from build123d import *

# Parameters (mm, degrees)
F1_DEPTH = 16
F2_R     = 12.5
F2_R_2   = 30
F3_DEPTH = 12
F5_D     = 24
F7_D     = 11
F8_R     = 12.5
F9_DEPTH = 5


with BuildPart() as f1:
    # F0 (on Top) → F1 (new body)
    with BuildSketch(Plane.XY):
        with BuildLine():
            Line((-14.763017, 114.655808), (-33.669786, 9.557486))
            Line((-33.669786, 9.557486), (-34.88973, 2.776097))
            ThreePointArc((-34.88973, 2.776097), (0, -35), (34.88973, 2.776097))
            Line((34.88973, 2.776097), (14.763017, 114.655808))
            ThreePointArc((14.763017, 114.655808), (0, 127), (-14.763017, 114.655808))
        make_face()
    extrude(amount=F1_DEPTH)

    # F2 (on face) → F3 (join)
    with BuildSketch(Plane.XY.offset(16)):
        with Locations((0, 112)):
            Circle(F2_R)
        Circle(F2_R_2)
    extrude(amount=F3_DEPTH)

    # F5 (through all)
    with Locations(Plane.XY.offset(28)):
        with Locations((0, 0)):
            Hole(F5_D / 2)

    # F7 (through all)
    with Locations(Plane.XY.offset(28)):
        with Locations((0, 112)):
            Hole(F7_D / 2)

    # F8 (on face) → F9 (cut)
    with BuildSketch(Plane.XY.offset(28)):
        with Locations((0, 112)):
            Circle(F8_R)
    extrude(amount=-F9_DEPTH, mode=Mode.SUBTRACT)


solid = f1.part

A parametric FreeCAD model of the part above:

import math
import FreeCAD as App
import Part
import Sketcher

V = App.Vector
Q = App.Units.Quantity

doc = App.newDocument("Part")
body = doc.addObject("PartDesign::Body", "Body")

# Sketch on XY plane
sketch1 = body.newObject("Sketcher::SketchObject", "Sketch")
sketch1.AttachmentSupport = (doc.getObject("XY_Plane"), [""])
sketch1.MapMode = "FlatFace"
sketch1.addGeometry(Part.LineSegment(V(-14.763017, 114.655808, 0), V(-33.669786, 9.557486, 0)), False)
sketch1.addGeometry(Part.LineSegment(V(-33.669786, 9.557486, 0), V(-34.88973, 2.776097, 0)), False)
sketch1.addGeometry(Part.ArcOfCircle(Part.Circle(V(0, 0, 0), V(0, 0, 1), 35), math.radians(175.450688), math.radians(364.549312)), False)
sketch1.addGeometry(Part.LineSegment(V(34.88973, 2.776097, 0), V(14.763017, 114.655808, 0)), False)
sketch1.addGeometry(Part.ArcOfCircle(Part.Circle(V(0, 112.000001, 0), V(0, 0, 1), 14.999999), math.radians(10.198201), math.radians(169.801799)), False)
sketch1.addConstraint(Sketcher.Constraint("Coincident", 0, 2, 1, 1))
sketch1.addConstraint(Sketcher.Constraint("Coincident", 1, 2, 2, 1))
sketch1.addConstraint(Sketcher.Constraint("Coincident", 2, 2, 3, 1))
sketch1.addConstraint(Sketcher.Constraint("Tangent", 3, 2, 4, 1))
sketch1.addConstraint(Sketcher.Constraint("Tangent", 4, 2, 0, 1))
sketch1.addConstraint(Sketcher.Constraint("Coincident", 2, 3, -1, 1))
sketch1.addConstraint(Sketcher.Constraint("Symmetric", 3, 2, 4, 2, -2))
sketch1.addConstraint(Sketcher.Constraint("Parallel", 0, 1))
sketch1.addConstraint(Sketcher.Constraint("Radius", 2, Q("35 mm")))
sketch1.addConstraint(Sketcher.Constraint("Radius", 4, Q("14.999999 mm")))
sketch1.addConstraint(Sketcher.Constraint("DistanceY", -1, 1, 4, 3, Q("112.000001 mm")))
sketch1.addConstraint(Sketcher.Constraint("DistanceX", 1, 2, -1, 1, Q("34.88973 mm")))
sketch1.addConstraint(Sketcher.Constraint("DistanceY", 1, 2, 0, 2, Q("6.781389 mm")))
pad1 = body.newObject("PartDesign::Pad", "Pad")
pad1.Profile = sketch1
pad1.Length = 16

# Sketch on XY plane
sketch2 = body.newObject("Sketcher::SketchObject", "Sketch001")
sketch2.AttachmentSupport = (doc.getObject("XY_Plane"), [""])
sketch2.MapMode = "FlatFace"
sketch2.AttachmentOffset = App.Placement(V(0, 0, 16), App.Rotation())
sketch2.addGeometry(Part.Circle(V(0, 112, 0), V(0, 0, 1), 12.5), False)
sketch2.addGeometry(Part.Circle(V(0, 0, 0), V(0, 0, 1), 30), False)
sketch2.addConstraint(Sketcher.Constraint("Coincident", 1, 3, -1, 1))
sketch2.addConstraint(Sketcher.Constraint("PointOnObject", 0, 3, -2))
sketch2.addConstraint(Sketcher.Constraint("Diameter", 0, Q("25 mm")))
sketch2.addConstraint(Sketcher.Constraint("Diameter", 1, Q("60 mm")))
sketch2.addConstraint(Sketcher.Constraint("DistanceY", -1, 1, 0, 3, Q("112 mm")))
pad2 = body.newObject("PartDesign::Pad", "Pad001")
pad2.Profile = sketch2
pad2.Length = 12

# Sketch on XY plane
sketch3 = body.newObject("Sketcher::SketchObject", "Sketch002")
sketch3.AttachmentSupport = (doc.getObject("XY_Plane"), [""])
sketch3.MapMode = "FlatFace"
sketch3.AttachmentOffset = App.Placement(V(0, 0, 28), App.Rotation())
sketch3.addGeometry(Part.Circle(V(0, 0, 0), V(0, 0, 1), 12), False)
sketch3.addConstraint(Sketcher.Constraint("Coincident", 0, 3, -1, 1))
sketch3.addConstraint(Sketcher.Constraint("Diameter", 0, Q("24 mm")))
doc.recompute()
hole = body.newObject("PartDesign::Hole", "Hole")
hole.Profile = sketch3
hole.ThreadType = "None"
hole.Diameter = 24
hole.DepthType = "ThroughAll"

# Sketch on XY plane
sketch4 = body.newObject("Sketcher::SketchObject", "Sketch003")
sketch4.AttachmentSupport = (doc.getObject("XY_Plane"), [""])
sketch4.MapMode = "FlatFace"
sketch4.AttachmentOffset = App.Placement(V(0, 0, 28), App.Rotation())
sketch4.addGeometry(Part.Circle(V(0, 112, 0), V(0, 0, 1), 5.5), False)
sketch4.addConstraint(Sketcher.Constraint("PointOnObject", 0, 3, -2))
sketch4.addConstraint(Sketcher.Constraint("Diameter", 0, Q("11 mm")))
sketch4.addConstraint(Sketcher.Constraint("DistanceY", -1, 1, 0, 3, Q("112 mm")))
doc.recompute()
hole2 = body.newObject("PartDesign::Hole", "Hole001")
hole2.Profile = sketch4
hole2.ThreadType = "None"
hole2.Diameter = 11
hole2.DepthType = "ThroughAll"

# Sketch on XY plane
sketch5 = body.newObject("Sketcher::SketchObject", "Sketch004")
sketch5.AttachmentSupport = (doc.getObject("XY_Plane"), [""])
sketch5.MapMode = "FlatFace"
sketch5.AttachmentOffset = App.Placement(V(0, 0, 28), App.Rotation())
sketch5.addGeometry(Part.Circle(V(0, 112, 0), V(0, 0, 1), 12.5), False)
sketch5.addConstraint(Sketcher.Constraint("PointOnObject", 0, 3, -2))
sketch5.addConstraint(Sketcher.Constraint("Diameter", 0, Q("25 mm")))
sketch5.addConstraint(Sketcher.Constraint("DistanceY", -1, 1, 0, 3, Q("112 mm")))
pocket1 = body.newObject("PartDesign::Pocket", "Pocket")
pocket1.Profile = sketch5
pocket1.Length = 5

doc.recompute()
